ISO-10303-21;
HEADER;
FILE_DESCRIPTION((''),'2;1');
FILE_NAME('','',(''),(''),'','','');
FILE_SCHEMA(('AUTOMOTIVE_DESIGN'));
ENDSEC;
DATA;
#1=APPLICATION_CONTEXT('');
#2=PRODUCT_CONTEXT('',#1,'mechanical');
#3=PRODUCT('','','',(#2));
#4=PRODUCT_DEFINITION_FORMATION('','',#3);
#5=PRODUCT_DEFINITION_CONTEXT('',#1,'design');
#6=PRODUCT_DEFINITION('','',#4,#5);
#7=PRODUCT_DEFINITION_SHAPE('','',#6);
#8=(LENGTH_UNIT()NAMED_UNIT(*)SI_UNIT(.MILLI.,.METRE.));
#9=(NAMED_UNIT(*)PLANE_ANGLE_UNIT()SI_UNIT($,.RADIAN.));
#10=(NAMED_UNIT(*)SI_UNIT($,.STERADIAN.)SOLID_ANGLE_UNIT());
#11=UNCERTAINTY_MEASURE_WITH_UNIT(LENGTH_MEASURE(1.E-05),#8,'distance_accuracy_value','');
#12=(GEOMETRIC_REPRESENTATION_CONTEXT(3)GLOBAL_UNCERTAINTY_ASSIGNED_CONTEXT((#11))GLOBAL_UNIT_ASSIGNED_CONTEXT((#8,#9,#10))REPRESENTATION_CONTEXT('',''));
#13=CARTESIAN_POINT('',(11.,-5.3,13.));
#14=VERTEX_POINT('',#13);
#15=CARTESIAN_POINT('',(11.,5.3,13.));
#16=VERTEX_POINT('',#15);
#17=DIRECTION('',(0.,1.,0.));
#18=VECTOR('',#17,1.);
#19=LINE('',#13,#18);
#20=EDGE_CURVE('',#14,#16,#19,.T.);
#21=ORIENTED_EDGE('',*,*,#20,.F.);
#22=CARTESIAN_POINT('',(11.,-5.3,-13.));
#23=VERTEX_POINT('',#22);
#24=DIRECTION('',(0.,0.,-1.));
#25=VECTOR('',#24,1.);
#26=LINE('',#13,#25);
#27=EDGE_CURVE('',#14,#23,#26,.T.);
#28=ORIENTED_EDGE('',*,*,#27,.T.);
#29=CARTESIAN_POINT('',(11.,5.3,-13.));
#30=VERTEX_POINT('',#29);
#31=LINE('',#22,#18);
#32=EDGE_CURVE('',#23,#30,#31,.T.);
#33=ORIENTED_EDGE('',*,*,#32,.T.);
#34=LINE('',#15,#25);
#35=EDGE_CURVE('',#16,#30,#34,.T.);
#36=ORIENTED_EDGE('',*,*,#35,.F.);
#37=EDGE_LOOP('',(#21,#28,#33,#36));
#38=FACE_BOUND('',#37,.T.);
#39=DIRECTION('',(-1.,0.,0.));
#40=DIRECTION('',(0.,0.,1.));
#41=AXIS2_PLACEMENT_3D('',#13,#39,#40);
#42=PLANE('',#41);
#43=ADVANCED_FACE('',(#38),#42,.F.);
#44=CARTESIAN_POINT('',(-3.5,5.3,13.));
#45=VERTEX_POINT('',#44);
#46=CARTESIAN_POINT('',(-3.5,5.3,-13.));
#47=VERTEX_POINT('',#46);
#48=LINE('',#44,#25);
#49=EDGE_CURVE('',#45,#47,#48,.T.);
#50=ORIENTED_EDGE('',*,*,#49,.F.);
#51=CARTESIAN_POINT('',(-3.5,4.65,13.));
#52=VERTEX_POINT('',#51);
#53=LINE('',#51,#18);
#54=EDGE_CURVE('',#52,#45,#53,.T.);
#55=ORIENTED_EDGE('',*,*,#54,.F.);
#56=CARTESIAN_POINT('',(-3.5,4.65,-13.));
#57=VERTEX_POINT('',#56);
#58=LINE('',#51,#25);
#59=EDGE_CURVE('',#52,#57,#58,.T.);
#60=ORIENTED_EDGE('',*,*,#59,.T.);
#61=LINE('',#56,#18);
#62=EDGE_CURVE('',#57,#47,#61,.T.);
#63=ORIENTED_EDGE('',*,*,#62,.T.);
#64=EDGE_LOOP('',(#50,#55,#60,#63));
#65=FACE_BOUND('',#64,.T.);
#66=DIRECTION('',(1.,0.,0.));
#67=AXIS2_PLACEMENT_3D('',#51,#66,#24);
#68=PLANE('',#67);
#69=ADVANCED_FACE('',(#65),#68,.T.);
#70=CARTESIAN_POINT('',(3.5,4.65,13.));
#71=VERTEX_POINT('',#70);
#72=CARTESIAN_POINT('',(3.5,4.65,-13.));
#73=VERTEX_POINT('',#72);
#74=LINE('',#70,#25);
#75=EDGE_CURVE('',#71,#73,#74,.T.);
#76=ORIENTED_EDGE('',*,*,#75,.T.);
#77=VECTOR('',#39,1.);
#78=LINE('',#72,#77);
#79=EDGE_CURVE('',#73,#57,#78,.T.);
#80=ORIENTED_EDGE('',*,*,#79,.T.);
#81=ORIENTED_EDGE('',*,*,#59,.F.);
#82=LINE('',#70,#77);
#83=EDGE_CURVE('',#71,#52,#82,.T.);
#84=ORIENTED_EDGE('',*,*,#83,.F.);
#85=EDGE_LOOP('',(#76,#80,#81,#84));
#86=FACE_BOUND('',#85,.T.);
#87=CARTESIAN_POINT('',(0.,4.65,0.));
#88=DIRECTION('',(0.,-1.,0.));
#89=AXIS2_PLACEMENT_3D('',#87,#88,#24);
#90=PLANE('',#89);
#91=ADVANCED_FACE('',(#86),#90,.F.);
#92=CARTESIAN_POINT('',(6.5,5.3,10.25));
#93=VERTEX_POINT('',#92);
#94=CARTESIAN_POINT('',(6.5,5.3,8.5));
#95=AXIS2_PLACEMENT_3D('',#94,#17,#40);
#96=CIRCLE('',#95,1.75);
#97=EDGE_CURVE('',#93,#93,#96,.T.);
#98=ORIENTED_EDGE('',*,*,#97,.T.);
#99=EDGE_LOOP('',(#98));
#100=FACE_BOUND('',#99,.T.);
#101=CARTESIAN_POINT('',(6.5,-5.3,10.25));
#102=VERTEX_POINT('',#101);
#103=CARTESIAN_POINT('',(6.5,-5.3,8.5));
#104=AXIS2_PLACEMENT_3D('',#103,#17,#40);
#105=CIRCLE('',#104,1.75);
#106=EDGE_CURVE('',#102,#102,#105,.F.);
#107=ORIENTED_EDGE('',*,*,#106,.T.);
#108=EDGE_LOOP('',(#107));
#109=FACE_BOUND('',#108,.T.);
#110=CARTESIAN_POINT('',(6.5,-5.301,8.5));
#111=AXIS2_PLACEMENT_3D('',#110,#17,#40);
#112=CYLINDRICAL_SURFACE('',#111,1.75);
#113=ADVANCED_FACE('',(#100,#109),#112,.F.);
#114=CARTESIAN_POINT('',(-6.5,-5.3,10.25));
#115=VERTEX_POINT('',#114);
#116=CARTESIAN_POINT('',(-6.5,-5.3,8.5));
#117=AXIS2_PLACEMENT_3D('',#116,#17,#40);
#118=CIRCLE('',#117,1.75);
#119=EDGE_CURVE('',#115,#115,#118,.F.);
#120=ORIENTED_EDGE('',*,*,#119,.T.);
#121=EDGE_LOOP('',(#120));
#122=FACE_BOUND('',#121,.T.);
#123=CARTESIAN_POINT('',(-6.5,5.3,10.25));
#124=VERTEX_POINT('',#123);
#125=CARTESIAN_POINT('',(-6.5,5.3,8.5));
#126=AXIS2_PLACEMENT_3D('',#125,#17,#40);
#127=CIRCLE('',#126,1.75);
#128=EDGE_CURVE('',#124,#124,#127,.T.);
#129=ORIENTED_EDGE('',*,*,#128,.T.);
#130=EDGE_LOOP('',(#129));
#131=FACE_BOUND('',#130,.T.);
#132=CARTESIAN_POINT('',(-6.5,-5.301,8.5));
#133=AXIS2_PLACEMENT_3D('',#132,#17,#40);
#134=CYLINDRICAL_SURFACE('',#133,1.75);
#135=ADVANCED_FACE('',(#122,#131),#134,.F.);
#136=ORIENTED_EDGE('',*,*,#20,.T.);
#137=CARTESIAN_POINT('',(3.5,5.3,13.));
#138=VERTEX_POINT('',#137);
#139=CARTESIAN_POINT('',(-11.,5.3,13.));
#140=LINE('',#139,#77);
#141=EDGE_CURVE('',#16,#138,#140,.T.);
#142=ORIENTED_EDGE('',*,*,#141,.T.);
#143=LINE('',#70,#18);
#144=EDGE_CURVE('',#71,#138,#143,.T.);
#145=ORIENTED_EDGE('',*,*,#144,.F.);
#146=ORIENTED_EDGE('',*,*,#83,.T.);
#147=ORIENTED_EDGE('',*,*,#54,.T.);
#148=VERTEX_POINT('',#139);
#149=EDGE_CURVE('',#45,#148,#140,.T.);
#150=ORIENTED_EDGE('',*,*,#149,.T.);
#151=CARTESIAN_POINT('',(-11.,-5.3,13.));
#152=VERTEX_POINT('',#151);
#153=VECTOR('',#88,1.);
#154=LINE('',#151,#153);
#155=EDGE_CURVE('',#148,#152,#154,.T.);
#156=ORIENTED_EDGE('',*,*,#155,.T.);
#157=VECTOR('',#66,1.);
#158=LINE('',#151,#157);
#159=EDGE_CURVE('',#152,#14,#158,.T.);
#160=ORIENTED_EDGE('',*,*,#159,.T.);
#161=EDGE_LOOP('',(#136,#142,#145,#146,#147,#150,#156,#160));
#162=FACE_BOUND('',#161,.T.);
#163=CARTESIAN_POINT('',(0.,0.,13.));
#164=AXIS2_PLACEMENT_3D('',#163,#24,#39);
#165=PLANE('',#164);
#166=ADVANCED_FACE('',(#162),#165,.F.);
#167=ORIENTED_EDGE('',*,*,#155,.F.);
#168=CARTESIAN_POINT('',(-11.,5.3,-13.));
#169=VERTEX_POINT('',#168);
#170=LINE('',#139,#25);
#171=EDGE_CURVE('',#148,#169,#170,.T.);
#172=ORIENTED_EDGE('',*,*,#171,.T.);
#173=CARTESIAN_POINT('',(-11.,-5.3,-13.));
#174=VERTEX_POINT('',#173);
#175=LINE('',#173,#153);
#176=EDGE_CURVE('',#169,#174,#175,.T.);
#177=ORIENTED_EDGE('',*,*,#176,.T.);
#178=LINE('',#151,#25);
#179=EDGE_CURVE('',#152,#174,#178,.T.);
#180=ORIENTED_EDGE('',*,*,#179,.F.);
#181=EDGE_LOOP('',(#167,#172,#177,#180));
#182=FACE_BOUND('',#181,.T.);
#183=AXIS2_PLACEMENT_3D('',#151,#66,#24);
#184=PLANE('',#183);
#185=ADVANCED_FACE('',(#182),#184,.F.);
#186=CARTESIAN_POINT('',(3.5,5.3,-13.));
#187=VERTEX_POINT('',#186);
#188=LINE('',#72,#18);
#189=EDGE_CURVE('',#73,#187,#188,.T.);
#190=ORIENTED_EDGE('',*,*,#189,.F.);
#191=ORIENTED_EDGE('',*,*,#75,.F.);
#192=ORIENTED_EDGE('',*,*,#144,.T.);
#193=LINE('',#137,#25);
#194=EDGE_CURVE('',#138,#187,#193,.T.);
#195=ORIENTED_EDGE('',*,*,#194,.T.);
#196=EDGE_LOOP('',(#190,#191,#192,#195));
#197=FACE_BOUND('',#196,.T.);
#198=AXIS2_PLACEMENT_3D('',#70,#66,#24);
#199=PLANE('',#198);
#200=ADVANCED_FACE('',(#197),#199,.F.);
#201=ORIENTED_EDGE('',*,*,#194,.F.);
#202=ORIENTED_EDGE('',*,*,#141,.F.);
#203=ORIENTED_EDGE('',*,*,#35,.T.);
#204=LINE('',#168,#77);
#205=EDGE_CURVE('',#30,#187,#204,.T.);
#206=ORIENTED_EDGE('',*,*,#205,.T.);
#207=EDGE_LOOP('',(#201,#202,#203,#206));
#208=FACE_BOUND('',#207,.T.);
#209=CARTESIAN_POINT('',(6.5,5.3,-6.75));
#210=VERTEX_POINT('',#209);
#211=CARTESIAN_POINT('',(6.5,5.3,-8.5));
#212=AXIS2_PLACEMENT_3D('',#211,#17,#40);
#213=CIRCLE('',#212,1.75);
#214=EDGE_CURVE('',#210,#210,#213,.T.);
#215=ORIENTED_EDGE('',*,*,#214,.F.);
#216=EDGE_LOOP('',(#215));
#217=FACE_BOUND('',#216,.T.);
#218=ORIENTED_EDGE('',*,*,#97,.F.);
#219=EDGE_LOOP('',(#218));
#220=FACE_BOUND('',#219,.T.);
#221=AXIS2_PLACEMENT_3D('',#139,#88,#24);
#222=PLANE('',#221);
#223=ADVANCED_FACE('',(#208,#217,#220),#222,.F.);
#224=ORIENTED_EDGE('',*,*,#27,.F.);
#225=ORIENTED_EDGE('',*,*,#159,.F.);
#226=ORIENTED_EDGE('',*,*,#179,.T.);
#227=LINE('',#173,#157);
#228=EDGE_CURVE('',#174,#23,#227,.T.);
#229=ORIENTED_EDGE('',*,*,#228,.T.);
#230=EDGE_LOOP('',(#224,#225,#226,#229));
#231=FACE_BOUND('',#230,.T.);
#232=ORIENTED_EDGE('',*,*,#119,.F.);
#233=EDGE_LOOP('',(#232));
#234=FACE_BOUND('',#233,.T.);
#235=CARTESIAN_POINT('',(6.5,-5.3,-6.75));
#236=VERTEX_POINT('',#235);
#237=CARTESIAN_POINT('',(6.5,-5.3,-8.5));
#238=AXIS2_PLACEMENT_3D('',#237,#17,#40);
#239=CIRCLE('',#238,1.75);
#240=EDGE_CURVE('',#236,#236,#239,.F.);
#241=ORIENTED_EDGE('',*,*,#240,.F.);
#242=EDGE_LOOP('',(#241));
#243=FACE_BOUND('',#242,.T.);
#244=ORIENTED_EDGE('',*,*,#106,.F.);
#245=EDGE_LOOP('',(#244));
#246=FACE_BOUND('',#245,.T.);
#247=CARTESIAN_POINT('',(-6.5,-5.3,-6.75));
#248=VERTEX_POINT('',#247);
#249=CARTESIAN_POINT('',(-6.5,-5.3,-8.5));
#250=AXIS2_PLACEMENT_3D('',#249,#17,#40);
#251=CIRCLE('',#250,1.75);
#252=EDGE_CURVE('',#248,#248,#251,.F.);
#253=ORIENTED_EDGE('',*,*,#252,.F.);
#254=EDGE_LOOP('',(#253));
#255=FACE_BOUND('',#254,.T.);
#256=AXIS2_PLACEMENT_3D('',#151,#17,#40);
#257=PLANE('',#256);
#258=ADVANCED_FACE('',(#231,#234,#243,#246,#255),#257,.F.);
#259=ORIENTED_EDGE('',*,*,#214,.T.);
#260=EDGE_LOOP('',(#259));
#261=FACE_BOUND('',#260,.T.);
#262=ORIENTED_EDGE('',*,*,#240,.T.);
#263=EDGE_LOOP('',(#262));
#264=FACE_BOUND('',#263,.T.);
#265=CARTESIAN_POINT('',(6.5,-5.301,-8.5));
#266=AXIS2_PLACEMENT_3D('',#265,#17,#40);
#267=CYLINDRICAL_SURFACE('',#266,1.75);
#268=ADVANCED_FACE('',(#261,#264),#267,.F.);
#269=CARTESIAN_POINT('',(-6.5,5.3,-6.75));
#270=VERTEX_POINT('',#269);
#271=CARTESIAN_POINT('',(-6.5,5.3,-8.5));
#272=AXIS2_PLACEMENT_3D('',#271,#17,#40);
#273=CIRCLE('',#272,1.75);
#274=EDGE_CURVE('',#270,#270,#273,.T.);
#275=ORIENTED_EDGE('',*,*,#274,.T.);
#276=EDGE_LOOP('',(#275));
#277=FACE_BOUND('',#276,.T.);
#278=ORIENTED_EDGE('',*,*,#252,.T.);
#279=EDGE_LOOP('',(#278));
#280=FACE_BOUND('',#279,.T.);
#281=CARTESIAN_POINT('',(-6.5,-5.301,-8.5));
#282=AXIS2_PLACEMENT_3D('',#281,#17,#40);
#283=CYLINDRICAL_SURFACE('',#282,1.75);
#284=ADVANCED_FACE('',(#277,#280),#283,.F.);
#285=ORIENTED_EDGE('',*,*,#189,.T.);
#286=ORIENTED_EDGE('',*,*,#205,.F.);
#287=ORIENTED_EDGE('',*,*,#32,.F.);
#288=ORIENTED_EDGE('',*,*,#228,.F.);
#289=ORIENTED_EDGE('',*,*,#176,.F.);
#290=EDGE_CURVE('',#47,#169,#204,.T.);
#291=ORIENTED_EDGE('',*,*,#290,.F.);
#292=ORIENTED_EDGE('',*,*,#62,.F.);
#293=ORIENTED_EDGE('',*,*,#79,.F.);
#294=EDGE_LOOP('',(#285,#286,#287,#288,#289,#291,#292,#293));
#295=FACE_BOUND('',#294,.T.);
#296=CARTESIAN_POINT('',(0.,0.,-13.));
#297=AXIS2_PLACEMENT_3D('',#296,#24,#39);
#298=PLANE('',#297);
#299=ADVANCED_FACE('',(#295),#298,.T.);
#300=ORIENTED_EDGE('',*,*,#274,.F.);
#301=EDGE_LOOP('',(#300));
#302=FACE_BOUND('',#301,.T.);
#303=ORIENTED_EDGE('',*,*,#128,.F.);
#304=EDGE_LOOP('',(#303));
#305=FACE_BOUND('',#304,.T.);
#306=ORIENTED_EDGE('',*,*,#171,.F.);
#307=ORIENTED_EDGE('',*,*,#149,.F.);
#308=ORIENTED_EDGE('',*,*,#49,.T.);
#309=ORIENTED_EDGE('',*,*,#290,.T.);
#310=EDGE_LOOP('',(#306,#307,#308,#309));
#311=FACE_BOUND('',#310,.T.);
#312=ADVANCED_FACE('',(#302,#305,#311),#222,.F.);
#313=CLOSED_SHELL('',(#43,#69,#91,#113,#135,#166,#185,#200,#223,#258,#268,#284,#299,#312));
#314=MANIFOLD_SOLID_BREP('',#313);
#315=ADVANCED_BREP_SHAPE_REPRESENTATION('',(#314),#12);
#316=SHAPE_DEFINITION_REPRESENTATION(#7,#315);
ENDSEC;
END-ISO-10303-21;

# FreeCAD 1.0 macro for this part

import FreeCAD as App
import Part
import Sketcher

V = App.Vector
Q = App.Units.Quantity


def add_polygon(sketch, points):
    """Adds a closed chain of lines whose ends are joined by coincident constraints."""
    first, n = sketch.GeometryCount, len(points)
    for a, b in zip(points, points[1:] + points[:1]):
        sketch.addGeometry(Part.LineSegment(App.Vector(*a, 0), App.Vector(*b, 0)), False)
    for i in range(n):
        sketch.addConstraint(Sketcher.Constraint("Coincident", first + i, 2, first + (i + 1) % n, 1))

doc = App.newDocument("Part")
params = doc.addObject("Spreadsheet::Sheet", "Params")
for row, (alias, value) in enumerate([
    ("sketch1_width", "22 mm"),
    ("sketch1_height", "10.6 mm"),
    ("pad1_length", "26 mm"),
    ("sketch2_diameter", "3.5 mm"),
    ("sketch3_diameter", "3.5 mm"),
    ("sketch4_diameter", "3.5 mm"),
    ("sketch5_diameter", "3.5 mm"),
    ("sketch6_width", "7 mm"),
    ("sketch6_height", "26 mm"),
    ("pocket5_length", "0.65 mm"),
], start=1):
    params.set(f"A{row}", alias)
    params.set(f"B{row}", "=" + value)
    params.setAlias(f"B{row}", alias)

body = doc.addObject("PartDesign::Body", "Body")

sketch1 = doc.addObject("Sketcher::SketchObject", "Sketch")
body.addObject(sketch1)
sketch1.AttachmentSupport = (doc.XY_Plane, [""])
sketch1.MapMode = "FlatFace"
add_polygon(sketch1, [(-11, 5.3), (-11, -5.3), (11, -5.3), (11, 5.3)])
sketch1.addConstraint([
    Sketcher.Constraint("Vertical", 0),
    Sketcher.Constraint("Horizontal", 1),
    Sketcher.Constraint("Vertical", 2),
    Sketcher.Constraint("Horizontal", 3),
    Sketcher.Constraint("Symmetric", 0, 2, 2, 2, -1, 1),
    Sketcher.Constraint("DistanceX", 1, 1, 1, 2, Q("22 mm")),
    Sketcher.Constraint("DistanceY", 0, 2, 0, 1, Q("10.6 mm")),
])
sketch1.setExpression("Constraints[9]", "Params.sketch1_width")
sketch1.setExpression("Constraints[10]", "Params.sketch1_height")
pad1 = doc.addObject("PartDesign::Pad", "Pad")
body.addObject(pad1)
pad1.Profile = sketch1
pad1.setExpression("Length", "Params.pad1_length")
pad1.Midplane = True

sketch2 = doc.addObject("Sketcher::SketchObject", "Sketch001")
body.addObject(sketch2)
sketch2.AttachmentSupport = (doc.XZ_Plane, [""])
sketch2.MapMode = "FlatFace"
sketch2.AttachmentOffset = App.Placement(V(0, 0, -5.3), App.Rotation())
sketch2.addGeometry(Part.Circle(V(6.5, -8.5, 0), V(0, 0, 1), 1.75), False)
sketch2.addConstraint([
    Sketcher.Constraint("Diameter", 0, Q("3.5 mm")),
    Sketcher.Constraint("DistanceX", -1, 1, 0, 3, Q("6.5 mm")),
    Sketcher.Constraint("DistanceY", 0, 3, -1, 1, Q("8.5 mm")),
])
sketch2.setExpression("Constraints[0]", "Params.sketch2_diameter")
pocket1 = doc.addObject("PartDesign::Pocket", "Pocket")
body.addObject(pocket1)
pocket1.Profile = sketch2
pocket1.Type = "UpToFirst"
pocket1.Reversed = True

sketch3 = doc.addObject("Sketcher::SketchObject", "Sketch002")
body.addObject(sketch3)
sketch3.AttachmentSupport = (doc.XZ_Plane, [""])
sketch3.MapMode = "FlatFace"
sketch3.AttachmentOffset = App.Placement(V(0, 0, -5.3), App.Rotation())
sketch3.addGeometry(Part.Circle(V(6.5, 8.5, 0), V(0, 0, 1), 1.75), False)
sketch3.addConstraint([
    Sketcher.Constraint("Diameter", 0, Q("3.5 mm")),
    Sketcher.Constraint("DistanceX", -1, 1, 0, 3, Q("6.5 mm")),
    Sketcher.Constraint("DistanceY", -1, 1, 0, 3, Q("8.5 mm")),
])
sketch3.setExpression("Constraints[0]", "Params.sketch3_diameter")
pocket2 = doc.addObject("PartDesign::Pocket", "Pocket001")
body.addObject(pocket2)
pocket2.Profile = sketch3
pocket2.Type = "UpToFirst"
pocket2.Reversed = True

sketch4 = doc.addObject("Sketcher::SketchObject", "Sketch003")
body.addObject(sketch4)
sketch4.AttachmentSupport = (doc.XZ_Plane, [""])
sketch4.MapMode = "FlatFace"
sketch4.AttachmentOffset = App.Placement(V(0, 0, -5.3), App.Rotation())
sketch4.addGeometry(Part.Circle(V(-6.5, 8.5, 0), V(0, 0, 1), 1.75), False)
sketch4.addConstraint([
    Sketcher.Constraint("Diameter", 0, Q("3.5 mm")),
    Sketcher.Constraint("DistanceX", 0, 3, -1, 1, Q("6.5 mm")),
    Sketcher.Constraint("DistanceY", -1, 1, 0, 3, Q("8.5 mm")),
])
sketch4.setExpression("Constraints[0]", "Params.sketch4_diameter")
pocket3 = doc.addObject("PartDesign::Pocket", "Pocket002")
body.addObject(pocket3)
pocket3.Profile = sketch4
pocket3.Type = "UpToFirst"
pocket3.Reversed = True

sketch5 = doc.addObject("Sketcher::SketchObject", "Sketch004")
body.addObject(sketch5)
sketch5.AttachmentSupport = (doc.XZ_Plane, [""])
sketch5.MapMode = "FlatFace"
sketch5.AttachmentOffset = App.Placement(V(0, 0, -5.3), App.Rotation())
sketch5.addGeometry(Part.Circle(V(-6.5, -8.5, 0), V(0, 0, 1), 1.75), False)
sketch5.addConstraint([
    Sketcher.Constraint("Diameter", 0, Q("3.5 mm")),
    Sketcher.Constraint("DistanceX", 0, 3, -1, 1, Q("6.5 mm")),
    Sketcher.Constraint("DistanceY", 0, 3, -1, 1, Q("8.5 mm")),
])
sketch5.setExpression("Constraints[0]", "Params.sketch5_diameter")
pocket4 = doc.addObject("PartDesign::Pocket", "Pocket003")
body.addObject(pocket4)
pocket4.Profile = sketch5
pocket4.Type = "UpToFirst"
pocket4.Reversed = True

sketch6 = doc.addObject("Sketcher::SketchObject", "Sketch005")
body.addObject(sketch6)
sketch6.AttachmentSupport = (doc.XZ_Plane, [""])
sketch6.MapMode = "FlatFace"
sketch6.AttachmentOffset = App.Placement(V(0, 0, -5.3), App.Rotation())
add_polygon(sketch6, [(-3.5, -13), (-3.5, 13), (3.5, 13), (3.5, -13)])
sketch6.addConstraint([
    Sketcher.Constraint("Vertical", 0),
    Sketcher.Constraint("Horizontal", 1),
    Sketcher.Constraint("Vertical", 2),
    Sketcher.Constraint("Horizontal", 3),
    Sketcher.Constraint("Symmetric", 0, 2, 2, 2, -1, 1),
    Sketcher.Constraint("DistanceX", 1, 1, 1, 2, Q("7 mm")),
    Sketcher.Constraint("DistanceY", 0, 1, 0, 2, Q("26 mm")),
])
sketch6.setExpression("Constraints[9]", "Params.sketch6_width")
sketch6.setExpression("Constraints[10]", "Params.sketch6_height")
pocket5 = doc.addObject("PartDesign::Pocket", "Pocket004")
body.addObject(pocket5)
pocket5.Profile = sketch6
pocket5.setExpression("Length", "Params.pocket5_length")
pocket5.Reversed = True

doc.recompute()
